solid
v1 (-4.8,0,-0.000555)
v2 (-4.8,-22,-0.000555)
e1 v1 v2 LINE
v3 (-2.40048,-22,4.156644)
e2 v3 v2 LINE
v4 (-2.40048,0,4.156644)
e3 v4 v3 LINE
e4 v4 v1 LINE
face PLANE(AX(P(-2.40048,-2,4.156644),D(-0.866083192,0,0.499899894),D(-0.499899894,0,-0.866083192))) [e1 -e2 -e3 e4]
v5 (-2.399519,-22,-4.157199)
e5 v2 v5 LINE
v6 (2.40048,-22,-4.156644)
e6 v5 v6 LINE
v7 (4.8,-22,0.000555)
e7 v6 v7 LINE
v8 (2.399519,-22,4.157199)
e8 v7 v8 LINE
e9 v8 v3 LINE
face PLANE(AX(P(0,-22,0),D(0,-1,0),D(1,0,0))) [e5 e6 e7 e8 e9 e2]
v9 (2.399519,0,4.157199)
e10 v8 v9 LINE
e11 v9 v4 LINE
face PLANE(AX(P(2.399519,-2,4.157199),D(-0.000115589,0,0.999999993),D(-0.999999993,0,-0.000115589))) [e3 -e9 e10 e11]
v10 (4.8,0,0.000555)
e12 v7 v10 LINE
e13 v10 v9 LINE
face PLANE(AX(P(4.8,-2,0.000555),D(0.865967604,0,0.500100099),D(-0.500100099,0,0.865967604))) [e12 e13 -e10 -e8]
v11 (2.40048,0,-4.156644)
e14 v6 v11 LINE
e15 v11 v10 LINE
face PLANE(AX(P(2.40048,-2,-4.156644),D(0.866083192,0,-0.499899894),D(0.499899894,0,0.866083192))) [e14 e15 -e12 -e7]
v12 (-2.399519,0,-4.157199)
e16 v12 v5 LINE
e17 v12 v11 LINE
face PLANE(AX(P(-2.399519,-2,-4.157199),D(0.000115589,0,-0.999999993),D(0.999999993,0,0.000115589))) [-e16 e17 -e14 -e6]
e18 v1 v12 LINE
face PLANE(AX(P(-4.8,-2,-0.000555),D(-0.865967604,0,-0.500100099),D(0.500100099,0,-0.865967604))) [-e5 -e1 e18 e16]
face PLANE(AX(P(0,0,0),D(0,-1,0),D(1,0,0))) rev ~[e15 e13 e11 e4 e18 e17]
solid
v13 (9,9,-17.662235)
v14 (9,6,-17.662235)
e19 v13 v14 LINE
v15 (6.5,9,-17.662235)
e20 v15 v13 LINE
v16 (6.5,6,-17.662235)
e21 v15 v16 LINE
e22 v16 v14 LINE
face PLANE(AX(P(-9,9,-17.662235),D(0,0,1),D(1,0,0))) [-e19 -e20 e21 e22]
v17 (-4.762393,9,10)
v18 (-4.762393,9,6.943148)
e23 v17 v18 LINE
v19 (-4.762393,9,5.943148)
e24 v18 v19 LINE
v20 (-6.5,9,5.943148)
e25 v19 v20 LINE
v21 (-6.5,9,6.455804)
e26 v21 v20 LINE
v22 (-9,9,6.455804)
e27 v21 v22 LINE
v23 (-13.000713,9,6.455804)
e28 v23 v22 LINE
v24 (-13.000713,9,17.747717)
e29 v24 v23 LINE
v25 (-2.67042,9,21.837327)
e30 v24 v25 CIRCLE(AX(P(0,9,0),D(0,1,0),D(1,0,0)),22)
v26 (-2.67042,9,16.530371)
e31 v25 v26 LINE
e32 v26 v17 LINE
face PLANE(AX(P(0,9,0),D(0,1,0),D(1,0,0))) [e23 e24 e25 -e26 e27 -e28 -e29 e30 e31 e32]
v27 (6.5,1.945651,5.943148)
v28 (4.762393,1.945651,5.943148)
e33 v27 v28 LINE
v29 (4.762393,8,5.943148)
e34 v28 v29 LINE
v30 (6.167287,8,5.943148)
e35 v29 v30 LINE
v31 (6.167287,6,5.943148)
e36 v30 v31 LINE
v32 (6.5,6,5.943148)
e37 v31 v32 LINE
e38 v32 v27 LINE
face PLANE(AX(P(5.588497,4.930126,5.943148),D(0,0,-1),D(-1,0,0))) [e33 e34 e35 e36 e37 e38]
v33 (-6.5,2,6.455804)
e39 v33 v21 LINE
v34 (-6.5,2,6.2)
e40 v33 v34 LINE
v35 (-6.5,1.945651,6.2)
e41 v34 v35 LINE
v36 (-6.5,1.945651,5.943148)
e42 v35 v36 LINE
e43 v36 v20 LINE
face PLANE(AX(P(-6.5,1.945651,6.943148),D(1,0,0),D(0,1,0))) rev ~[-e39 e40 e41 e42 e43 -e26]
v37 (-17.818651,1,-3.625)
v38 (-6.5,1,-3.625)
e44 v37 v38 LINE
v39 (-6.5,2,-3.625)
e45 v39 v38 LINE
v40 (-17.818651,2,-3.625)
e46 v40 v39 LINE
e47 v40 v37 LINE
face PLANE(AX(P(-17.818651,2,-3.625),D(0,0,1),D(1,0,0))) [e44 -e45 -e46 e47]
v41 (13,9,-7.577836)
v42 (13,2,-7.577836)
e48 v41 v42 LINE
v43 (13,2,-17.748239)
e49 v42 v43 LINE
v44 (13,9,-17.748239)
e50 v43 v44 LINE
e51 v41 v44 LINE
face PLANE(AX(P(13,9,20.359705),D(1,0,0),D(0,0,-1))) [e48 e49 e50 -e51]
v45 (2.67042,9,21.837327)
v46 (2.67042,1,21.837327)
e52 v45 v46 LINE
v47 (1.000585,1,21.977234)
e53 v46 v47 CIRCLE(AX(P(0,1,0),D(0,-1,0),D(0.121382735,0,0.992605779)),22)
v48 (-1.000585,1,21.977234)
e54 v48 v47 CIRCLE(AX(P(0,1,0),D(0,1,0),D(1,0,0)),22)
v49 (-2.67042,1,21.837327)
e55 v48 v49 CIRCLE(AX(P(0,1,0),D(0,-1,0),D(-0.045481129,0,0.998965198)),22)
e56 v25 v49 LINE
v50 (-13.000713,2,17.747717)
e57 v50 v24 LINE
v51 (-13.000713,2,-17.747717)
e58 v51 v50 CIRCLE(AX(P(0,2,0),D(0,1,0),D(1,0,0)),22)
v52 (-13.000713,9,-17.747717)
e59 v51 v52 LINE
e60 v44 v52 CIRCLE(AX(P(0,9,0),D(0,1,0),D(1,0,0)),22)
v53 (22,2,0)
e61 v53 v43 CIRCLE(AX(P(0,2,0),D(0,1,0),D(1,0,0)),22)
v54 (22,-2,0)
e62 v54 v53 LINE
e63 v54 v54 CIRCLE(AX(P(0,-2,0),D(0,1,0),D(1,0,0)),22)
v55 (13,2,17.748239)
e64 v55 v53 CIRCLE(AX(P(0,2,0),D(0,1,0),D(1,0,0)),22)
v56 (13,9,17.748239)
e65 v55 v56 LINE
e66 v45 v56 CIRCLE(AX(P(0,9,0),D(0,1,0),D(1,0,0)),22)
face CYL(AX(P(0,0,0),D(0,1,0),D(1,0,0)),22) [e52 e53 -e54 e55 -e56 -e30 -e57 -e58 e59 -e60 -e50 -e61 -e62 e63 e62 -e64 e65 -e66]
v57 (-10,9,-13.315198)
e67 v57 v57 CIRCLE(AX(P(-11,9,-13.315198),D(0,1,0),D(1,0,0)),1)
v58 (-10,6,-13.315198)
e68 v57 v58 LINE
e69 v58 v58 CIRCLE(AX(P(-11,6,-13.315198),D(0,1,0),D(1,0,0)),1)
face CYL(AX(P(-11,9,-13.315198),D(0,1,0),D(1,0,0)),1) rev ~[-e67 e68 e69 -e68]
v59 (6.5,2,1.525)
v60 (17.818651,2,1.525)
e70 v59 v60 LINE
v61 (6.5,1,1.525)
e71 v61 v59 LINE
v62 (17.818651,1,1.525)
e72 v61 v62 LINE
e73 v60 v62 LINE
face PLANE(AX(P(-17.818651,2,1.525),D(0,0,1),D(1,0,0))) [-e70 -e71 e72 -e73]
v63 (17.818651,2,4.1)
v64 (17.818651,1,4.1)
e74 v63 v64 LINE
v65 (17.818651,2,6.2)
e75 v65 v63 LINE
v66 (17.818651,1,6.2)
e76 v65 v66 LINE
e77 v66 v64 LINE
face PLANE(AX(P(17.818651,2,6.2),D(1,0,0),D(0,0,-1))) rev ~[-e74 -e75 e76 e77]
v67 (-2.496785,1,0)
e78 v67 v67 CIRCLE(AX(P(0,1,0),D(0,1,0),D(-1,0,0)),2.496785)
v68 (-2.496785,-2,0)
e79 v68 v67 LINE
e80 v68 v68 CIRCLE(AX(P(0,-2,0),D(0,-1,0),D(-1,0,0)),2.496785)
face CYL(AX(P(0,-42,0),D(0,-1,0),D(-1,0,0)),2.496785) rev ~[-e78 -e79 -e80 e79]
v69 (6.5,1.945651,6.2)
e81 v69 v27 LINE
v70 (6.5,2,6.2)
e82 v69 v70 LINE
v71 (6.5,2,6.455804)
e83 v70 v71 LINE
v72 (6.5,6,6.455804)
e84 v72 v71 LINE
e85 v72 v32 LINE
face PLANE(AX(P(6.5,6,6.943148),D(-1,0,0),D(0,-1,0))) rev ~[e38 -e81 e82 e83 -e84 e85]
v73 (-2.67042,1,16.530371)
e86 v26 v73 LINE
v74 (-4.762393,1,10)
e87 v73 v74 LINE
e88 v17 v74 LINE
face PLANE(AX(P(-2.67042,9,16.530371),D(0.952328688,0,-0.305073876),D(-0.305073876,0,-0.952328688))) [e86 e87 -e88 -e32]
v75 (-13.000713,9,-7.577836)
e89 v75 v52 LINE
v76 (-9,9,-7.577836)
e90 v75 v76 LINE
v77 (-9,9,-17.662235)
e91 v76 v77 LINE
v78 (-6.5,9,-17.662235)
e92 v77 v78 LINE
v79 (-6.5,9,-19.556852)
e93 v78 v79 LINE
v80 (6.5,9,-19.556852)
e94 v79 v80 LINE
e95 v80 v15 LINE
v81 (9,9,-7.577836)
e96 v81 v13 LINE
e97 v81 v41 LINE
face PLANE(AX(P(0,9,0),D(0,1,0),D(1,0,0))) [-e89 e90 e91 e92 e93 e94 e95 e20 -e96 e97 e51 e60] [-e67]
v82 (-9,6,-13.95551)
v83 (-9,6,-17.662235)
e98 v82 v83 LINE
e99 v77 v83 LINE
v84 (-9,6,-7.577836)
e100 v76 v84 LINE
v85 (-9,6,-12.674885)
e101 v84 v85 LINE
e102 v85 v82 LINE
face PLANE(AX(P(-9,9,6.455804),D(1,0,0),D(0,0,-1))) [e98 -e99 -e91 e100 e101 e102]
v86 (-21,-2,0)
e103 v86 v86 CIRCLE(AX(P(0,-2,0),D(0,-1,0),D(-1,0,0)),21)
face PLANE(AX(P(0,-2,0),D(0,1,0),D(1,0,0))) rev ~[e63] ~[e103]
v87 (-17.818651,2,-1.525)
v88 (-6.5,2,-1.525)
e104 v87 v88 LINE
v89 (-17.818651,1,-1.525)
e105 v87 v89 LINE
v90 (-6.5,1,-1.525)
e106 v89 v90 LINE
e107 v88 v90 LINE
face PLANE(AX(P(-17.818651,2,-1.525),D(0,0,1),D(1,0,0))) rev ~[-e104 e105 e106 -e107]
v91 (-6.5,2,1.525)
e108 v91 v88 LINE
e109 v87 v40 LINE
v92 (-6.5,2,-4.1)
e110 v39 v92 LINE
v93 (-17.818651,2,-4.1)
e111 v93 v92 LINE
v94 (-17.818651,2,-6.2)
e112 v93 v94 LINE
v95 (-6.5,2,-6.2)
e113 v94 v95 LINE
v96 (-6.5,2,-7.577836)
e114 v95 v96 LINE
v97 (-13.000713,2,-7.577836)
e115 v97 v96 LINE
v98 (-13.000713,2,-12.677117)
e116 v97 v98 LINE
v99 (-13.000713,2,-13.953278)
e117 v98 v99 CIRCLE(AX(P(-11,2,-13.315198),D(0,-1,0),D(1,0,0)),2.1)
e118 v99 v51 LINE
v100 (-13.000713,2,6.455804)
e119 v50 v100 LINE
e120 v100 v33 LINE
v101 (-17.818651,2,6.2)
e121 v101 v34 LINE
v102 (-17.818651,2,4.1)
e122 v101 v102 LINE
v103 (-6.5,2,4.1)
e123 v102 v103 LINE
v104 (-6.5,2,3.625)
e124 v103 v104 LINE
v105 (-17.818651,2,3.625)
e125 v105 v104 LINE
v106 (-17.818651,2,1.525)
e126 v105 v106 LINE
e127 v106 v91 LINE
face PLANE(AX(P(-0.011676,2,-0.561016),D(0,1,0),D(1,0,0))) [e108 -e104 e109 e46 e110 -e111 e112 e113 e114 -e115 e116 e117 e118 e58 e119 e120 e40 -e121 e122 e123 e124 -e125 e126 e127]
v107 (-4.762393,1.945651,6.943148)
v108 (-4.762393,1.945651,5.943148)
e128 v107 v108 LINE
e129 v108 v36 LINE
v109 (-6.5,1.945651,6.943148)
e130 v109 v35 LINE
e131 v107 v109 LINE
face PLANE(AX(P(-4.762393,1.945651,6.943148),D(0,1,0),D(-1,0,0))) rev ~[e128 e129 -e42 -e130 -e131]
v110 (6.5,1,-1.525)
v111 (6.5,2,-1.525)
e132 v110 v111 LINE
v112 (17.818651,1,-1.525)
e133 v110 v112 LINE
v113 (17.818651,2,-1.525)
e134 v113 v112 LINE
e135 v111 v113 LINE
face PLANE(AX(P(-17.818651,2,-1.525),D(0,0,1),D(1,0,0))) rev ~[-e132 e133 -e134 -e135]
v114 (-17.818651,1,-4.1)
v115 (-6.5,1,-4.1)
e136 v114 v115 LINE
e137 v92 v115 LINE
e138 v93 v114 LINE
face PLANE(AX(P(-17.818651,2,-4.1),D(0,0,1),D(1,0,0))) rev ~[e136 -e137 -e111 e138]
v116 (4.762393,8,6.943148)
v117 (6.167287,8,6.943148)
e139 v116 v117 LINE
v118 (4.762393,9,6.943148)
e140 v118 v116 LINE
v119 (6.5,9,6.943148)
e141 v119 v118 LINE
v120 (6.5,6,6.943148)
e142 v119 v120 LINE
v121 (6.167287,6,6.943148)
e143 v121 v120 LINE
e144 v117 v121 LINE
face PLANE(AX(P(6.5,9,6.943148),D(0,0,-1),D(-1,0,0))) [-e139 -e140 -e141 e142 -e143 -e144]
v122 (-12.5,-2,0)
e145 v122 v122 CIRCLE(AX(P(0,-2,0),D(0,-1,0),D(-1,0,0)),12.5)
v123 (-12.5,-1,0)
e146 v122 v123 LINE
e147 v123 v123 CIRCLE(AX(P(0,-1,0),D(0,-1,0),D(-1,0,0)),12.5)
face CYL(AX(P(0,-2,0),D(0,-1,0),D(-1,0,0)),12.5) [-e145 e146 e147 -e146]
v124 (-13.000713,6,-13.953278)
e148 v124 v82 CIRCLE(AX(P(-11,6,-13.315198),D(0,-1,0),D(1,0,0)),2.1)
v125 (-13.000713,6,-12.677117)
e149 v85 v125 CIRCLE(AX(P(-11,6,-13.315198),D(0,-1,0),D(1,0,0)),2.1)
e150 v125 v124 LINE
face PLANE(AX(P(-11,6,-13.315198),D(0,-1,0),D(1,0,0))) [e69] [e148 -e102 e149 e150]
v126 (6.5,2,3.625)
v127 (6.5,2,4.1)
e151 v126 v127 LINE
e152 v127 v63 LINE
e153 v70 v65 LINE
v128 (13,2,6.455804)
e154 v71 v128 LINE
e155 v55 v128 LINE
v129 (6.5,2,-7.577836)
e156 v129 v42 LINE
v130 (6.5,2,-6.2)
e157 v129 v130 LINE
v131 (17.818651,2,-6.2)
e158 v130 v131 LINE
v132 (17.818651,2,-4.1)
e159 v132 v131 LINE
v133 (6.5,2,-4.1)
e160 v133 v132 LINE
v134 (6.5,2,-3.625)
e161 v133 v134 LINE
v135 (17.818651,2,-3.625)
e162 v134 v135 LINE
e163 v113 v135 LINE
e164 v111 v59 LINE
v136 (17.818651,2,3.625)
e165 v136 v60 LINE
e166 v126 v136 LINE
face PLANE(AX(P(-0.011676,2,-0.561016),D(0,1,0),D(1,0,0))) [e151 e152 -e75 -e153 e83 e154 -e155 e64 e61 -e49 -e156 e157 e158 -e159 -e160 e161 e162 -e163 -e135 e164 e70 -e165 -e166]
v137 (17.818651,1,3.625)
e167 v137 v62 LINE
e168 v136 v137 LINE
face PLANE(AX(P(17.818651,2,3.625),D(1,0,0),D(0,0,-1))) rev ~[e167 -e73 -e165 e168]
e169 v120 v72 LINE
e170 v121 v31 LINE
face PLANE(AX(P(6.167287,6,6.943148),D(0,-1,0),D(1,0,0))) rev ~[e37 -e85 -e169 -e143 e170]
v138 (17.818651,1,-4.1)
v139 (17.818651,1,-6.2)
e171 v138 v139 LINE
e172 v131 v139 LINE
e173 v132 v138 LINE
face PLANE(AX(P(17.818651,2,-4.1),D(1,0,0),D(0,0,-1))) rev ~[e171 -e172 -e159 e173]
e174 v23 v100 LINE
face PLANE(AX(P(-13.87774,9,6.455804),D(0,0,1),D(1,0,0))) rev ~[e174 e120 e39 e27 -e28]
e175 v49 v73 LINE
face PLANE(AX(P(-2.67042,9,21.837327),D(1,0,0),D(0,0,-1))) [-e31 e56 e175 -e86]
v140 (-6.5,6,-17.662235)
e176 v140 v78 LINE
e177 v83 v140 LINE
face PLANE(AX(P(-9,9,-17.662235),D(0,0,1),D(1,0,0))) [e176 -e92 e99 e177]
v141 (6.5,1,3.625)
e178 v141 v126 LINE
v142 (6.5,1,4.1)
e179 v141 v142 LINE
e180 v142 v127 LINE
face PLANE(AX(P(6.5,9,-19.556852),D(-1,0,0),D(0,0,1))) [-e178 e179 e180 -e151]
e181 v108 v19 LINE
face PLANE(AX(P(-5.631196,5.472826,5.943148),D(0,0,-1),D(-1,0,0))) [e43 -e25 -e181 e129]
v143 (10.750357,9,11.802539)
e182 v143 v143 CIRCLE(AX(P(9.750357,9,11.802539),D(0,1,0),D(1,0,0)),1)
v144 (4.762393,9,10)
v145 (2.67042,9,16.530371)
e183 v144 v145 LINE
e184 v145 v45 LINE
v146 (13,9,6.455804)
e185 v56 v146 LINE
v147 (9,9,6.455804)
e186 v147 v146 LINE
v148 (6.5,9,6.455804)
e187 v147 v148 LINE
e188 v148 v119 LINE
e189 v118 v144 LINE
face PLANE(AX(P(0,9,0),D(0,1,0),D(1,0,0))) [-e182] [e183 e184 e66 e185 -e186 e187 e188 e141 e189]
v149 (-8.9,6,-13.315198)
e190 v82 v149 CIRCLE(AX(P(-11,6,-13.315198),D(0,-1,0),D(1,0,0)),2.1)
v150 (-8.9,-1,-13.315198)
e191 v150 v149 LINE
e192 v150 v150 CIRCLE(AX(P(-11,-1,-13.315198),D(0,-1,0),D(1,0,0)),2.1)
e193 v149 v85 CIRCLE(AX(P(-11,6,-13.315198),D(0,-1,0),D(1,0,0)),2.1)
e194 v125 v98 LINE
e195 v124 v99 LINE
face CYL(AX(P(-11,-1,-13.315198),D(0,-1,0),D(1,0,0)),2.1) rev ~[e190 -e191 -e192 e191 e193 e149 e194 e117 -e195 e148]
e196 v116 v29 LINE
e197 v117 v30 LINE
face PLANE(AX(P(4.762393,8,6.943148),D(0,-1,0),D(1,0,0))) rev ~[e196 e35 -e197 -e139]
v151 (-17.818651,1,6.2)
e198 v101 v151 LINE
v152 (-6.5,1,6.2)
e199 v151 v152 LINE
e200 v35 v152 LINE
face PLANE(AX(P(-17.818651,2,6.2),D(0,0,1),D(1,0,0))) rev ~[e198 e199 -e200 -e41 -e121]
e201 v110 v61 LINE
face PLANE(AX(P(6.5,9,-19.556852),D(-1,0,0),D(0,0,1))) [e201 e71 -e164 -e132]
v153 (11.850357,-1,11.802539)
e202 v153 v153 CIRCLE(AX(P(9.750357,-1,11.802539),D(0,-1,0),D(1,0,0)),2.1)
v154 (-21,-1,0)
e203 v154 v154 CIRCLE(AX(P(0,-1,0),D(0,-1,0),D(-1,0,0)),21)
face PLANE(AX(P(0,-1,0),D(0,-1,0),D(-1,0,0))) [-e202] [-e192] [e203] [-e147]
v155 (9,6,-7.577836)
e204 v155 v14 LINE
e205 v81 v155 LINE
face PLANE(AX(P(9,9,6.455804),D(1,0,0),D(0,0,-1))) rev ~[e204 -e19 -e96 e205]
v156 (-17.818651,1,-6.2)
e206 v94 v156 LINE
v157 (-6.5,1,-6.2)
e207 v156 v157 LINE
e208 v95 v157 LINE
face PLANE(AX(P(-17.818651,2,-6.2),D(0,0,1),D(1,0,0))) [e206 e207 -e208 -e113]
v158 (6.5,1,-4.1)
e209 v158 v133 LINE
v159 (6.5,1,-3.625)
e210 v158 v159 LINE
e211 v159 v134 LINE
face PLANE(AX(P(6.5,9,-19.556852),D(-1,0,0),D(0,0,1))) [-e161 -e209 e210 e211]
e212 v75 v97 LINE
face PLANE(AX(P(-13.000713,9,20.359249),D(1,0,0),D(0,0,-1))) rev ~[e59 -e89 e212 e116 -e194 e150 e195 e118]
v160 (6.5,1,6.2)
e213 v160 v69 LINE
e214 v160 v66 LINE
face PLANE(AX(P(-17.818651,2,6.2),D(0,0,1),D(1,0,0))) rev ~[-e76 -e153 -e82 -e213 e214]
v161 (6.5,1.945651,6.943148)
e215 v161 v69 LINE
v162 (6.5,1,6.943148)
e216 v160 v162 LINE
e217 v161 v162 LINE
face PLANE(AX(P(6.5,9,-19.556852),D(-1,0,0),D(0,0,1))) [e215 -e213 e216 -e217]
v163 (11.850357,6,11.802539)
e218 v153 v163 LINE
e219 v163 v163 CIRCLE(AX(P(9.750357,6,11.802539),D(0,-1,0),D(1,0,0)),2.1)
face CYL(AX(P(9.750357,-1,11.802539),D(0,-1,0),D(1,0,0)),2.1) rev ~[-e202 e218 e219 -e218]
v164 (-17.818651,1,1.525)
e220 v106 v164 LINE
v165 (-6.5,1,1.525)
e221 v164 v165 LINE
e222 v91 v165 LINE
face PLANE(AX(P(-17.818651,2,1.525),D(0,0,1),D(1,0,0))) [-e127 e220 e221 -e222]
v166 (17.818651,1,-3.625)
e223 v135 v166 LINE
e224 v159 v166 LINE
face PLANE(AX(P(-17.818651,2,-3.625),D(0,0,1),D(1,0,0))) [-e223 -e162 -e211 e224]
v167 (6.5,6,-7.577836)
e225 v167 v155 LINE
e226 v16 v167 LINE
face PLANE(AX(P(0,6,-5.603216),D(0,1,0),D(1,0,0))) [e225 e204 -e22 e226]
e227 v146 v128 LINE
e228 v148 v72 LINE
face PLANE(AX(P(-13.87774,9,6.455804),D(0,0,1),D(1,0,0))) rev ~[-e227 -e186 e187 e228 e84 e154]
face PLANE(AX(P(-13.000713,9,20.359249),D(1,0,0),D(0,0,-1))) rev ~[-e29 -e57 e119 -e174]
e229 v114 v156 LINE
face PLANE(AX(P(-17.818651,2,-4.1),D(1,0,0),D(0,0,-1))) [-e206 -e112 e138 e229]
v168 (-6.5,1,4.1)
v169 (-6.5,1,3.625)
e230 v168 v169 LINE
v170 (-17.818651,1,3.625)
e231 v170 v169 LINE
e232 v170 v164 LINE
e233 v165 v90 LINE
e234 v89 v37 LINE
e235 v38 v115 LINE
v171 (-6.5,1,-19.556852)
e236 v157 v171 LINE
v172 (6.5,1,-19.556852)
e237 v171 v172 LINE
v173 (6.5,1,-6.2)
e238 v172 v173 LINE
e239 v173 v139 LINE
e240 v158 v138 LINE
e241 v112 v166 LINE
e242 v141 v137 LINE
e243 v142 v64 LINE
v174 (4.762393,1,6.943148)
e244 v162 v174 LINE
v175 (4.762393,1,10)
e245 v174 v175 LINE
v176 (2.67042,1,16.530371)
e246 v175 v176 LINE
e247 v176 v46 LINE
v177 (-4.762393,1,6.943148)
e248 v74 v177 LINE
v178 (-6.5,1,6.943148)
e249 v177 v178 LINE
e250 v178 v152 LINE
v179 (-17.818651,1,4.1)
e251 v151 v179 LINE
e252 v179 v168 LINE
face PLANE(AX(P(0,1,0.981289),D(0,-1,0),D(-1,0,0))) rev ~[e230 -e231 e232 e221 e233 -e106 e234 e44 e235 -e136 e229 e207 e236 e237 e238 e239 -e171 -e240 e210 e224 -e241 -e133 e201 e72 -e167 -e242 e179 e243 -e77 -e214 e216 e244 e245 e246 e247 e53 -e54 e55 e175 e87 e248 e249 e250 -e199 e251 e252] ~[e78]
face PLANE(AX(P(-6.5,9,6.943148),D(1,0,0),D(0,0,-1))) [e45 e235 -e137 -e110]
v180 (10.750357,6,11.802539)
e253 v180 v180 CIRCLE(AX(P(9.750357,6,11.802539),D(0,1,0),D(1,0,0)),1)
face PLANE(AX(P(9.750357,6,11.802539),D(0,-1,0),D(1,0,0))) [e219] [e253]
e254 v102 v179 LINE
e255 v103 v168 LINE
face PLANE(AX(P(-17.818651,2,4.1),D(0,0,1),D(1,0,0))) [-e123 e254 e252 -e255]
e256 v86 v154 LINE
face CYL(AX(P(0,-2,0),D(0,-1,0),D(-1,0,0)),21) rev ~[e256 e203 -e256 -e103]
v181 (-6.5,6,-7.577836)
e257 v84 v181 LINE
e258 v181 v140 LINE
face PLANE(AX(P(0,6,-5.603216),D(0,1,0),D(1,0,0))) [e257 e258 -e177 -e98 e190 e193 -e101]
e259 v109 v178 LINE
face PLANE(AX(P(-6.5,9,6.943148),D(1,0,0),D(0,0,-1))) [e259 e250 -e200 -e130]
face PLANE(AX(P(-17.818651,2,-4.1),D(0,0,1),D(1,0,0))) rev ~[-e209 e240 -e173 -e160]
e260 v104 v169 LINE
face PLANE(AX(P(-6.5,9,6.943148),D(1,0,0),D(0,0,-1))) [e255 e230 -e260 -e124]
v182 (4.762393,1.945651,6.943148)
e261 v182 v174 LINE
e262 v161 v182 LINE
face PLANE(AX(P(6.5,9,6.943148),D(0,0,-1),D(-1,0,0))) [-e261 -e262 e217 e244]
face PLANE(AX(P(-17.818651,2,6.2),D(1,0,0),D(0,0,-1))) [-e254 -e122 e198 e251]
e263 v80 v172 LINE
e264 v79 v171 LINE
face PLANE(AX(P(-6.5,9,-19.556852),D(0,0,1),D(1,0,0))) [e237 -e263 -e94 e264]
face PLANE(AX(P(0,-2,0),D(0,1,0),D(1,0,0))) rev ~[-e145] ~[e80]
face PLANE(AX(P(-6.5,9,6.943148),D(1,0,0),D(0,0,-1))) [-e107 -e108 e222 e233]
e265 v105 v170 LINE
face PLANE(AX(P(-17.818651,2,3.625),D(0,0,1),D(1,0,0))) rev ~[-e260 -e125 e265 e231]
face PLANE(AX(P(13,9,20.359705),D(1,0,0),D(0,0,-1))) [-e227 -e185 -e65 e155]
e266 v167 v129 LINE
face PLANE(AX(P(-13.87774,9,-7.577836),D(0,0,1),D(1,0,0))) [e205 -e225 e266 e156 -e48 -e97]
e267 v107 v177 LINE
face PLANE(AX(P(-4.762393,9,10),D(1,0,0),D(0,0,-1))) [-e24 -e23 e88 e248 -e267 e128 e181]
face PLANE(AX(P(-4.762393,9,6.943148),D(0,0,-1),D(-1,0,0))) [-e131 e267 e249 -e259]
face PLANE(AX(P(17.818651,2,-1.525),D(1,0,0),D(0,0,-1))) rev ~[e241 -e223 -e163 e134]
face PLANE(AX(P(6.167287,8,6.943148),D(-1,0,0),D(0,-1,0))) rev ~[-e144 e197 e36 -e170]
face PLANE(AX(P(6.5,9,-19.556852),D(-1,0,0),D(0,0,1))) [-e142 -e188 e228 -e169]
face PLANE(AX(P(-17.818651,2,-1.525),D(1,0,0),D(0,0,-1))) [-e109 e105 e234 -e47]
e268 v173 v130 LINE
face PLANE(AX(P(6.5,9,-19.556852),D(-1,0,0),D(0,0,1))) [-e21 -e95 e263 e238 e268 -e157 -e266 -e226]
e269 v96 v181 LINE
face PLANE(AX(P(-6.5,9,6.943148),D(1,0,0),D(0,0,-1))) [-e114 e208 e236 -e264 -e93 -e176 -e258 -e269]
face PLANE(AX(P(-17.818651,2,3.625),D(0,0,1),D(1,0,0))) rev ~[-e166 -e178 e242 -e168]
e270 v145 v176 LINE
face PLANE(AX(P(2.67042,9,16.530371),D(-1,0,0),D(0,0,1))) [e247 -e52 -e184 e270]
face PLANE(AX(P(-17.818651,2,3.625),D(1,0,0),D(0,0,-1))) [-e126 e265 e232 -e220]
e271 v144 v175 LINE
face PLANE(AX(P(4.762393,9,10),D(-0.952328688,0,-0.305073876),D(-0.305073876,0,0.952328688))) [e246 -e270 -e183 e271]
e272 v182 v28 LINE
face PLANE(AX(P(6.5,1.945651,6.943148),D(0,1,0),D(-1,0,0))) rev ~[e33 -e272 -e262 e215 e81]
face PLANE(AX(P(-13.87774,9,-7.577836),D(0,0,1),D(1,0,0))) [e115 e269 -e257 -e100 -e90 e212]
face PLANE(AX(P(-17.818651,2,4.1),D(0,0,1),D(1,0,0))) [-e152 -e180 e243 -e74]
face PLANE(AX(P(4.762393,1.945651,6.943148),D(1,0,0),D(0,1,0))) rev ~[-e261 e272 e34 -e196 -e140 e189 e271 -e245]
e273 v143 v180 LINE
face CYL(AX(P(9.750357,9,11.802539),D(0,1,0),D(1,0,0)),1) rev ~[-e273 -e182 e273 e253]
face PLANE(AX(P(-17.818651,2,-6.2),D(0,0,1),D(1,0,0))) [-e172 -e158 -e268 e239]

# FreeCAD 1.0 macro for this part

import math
import FreeCAD as App
import Part
import Sketcher
from FreeCAD import Vector
Q = App.Units.Quantity


def add_polygon(sketch, points):
    """Adds a closed chain of lines whose ends are joined by coincident constraints."""
    first, n = sketch.GeometryCount, len(points)
    for a, b in zip(points, points[1:] + points[:1]):
        sketch.addGeometry(Part.LineSegment(App.Vector(*a, 0), App.Vector(*b, 0)), False)
    for i in range(n):
        sketch.addConstraint(Sketcher.Constraint("Coincident", first + i, 2, first + (i + 1) % n, 1))

doc = App.newDocument("Part")
body = doc.addObject("PartDesign::Body", "Body")

sketch1 = body.newObject("Sketcher::SketchObject", "Sketch")
sketch1.AttachmentSupport = (doc.getObject("XZ_Plane"), [""])
sketch1.MapMode = "FlatFace"
sketch1.addGeometry(Part.Circle(Vector(0, 0, 0), Vector(0, 0, 1), 22), False)
sketch1.addConstraint([
    Sketcher.Constraint("Coincident", 0, 3, -1, 1),
    Sketcher.Constraint("Diameter", 0, Q("44 mm")),
])
pad1 = body.newObject("PartDesign::Pad", "Pad")
pad1.Profile = sketch1
pad1.Type = "TwoLengths"
pad1.Length = 9
pad1.Length2 = 2
pad1.Reversed = True

sketch2 = body.newObject("Sketcher::SketchObject", "Sketch001")
sketch2.AttachmentSupport = (doc.getObject("XZ_Plane"), [""])
sketch2.MapMode = "FlatFace"
sketch2.AttachmentOffset = App.Placement(Vector(0, 0, 2), App.Rotation())
sketch2.addGeometry([
    Part.Circle(Vector(0, 0, 0), Vector(0, 0, 1), 21),
    Part.Circle(Vector(0, 0, 0), Vector(0, 0, 1), 12.5),
], False)
sketch2.addConstraint([
    Sketcher.Constraint("Coincident", 0, 3, -1, 1),
    Sketcher.Constraint("Coincident", 1, 3, -1, 1),
    Sketcher.Constraint("Diameter", 0, Q("42 mm")),
    Sketcher.Constraint("Diameter", 1, Q("25 mm")),
])
pocket1 = body.newObject("PartDesign::Pocket", "Pocket")
pocket1.Profile = sketch2
pocket1.Length = 1

sketch3 = body.newObject("Sketcher::SketchObject", "Sketch002")
sketch3.AttachmentSupport = (doc.getObject("XZ_Plane"), [""])
sketch3.MapMode = "FlatFace"
sketch3.AttachmentOffset = App.Placement(Vector(0, 0, 2), App.Rotation())
sketch3.addGeometry(Part.Circle(Vector(0, 0, 0), Vector(0, 0, 1), 8.5), False)
sketch3.addConstraint([
    Sketcher.Constraint("Coincident", 0, 3, -1, 1),
    Sketcher.Constraint("Diameter", 0, Q("17 mm")),
])
pad2 = body.newObject("PartDesign::Pad", "Pad001")
pad2.Profile = sketch3
pad2.Length = 40

sketch4 = body.newObject("Sketcher::SketchObject", "Sketch003")
sketch4.AttachmentSupport = (doc.getObject("XZ_Plane"), [""])
sketch4.MapMode = "FlatFace"
sketch4.AttachmentOffset = App.Placement(Vector(0, 0, 2), App.Rotation())
sketch4.addGeometry(Part.Circle(Vector(0, 0, 0), Vector(0, 0, 1), 1.5), False)
sketch4.addConstraint([
    Sketcher.Constraint("Coincident", 0, 3, -1, 1),
    Sketcher.Constraint("Diameter", 0, Q("3 mm")),
])
pocket2 = body.newObject("PartDesign::Pocket", "Pocket001")
pocket2.Profile = sketch4
pocket2.Type = "ThroughAll"
pocket2.Midplane = True

sketch5 = body.newObject("Sketcher::SketchObject", "Sketch004")
sketch5.AttachmentSupport = (doc.getObject("XZ_Plane"), [""])
sketch5.MapMode = "FlatFace"
sketch5.AttachmentOffset = App.Placement(Vector(0, 0, -9), App.Rotation())
sketch5.addGeometry([
    Part.LineSegment(Vector(-13.000713, 20.359249, 0), Vector(-13.000713, -20.359249, 0)),
    Part.ArcOfCircle(Part.Circle(Vector(0, 0, 0), Vector(0, 0, 1), 24.156108), math.radians(122.560895), math.radians(237.439105)),
    Part.LineSegment(Vector(13, -20.359705, 0), Vector(13, 20.359705, 0)),
    Part.ArcOfCircle(Part.Circle(Vector(0, 0, 0), Vector(0, 0, 1), 24.156108), math.radians(-57.441112), math.radians(57.441112)),
], False)
sketch5.addConstraint([
    Sketcher.Constraint("Coincident", 0, 1, 1, 1),
    Sketcher.Constraint("Coincident", 1, 2, 0, 2),
    Sketcher.Constraint("Coincident", 2, 1, 3, 1),
    Sketcher.Constraint("Coincident", 3, 2, 2, 2),
    Sketcher.Constraint("Vertical", 0),
    Sketcher.Constraint("Vertical", 2),
    Sketcher.Constraint("Coincident", 1, 3, -1, 1),
    Sketcher.Constraint("Coincident", 3, 3, -1, 1),
    Sketcher.Constraint("Equal", 1, 3),
    Sketcher.Constraint("DistanceX", -1, 1, 2, 1, Q("13 mm")),
    Sketcher.Constraint("Radius", 1, Q("24.156108 mm")),
    Sketcher.Constraint("DistanceY", 0, 2, 0, 1, Q("40.718498 mm")),
])
pocket3 = body.newObject("PartDesign::Pocket", "Pocket002")
pocket3.Profile = sketch5
pocket3.Length = 7
pocket3.Reversed = True

sketch6 = body.newObject("Sketcher::SketchObject", "Sketch005")
sketch6.AttachmentSupport = (doc.getObject("XZ_Plane"), [""])
sketch6.MapMode = "FlatFace"
sketch6.AttachmentOffset = App.Placement(Vector(0, 0, 42), App.Rotation())
sketch6.addGeometry(Part.Circle(Vector(0, 0, 0), Vector(0, 0, 1), 2.496785), False)
sketch6.addConstraint([
    Sketcher.Constraint("Coincident", 0, 3, -1, 1),
    Sketcher.Constraint("Diameter", 0, Q("4.99357 mm")),
])
pocket4 = body.newObject("PartDesign::Pocket", "Pocket003")
pocket4.Profile = sketch6
pocket4.Length = 62

sketch7 = body.newObject("Sketcher::SketchObject", "Sketch006")
sketch7.AttachmentSupport = (doc.getObject("XZ_Plane"), [""])
sketch7.MapMode = "FlatFace"
sketch7.AttachmentOffset = App.Placement(Vector(0, 0, -9), App.Rotation())
add_polygon(sketch7, [(-9, -17.662235), (-9, 6.455804), (9, 6.455804), (9, -17.662235)])
sketch7.addConstraint([
    Sketcher.Constraint("Vertical", 0),
    Sketcher.Constraint("Horizontal", 1),
    Sketcher.Constraint("Vertical", 2),
    Sketcher.Constraint("Horizontal", 3),
    Sketcher.Constraint("DistanceX", 1, 1, 1, 2, Q("18 mm")),
    Sketcher.Constraint("DistanceX", 0, 2, -1, 1, Q("9 mm")),
    Sketcher.Constraint("DistanceY", 0, 1, 0, 2, Q("24.118039 mm")),
    Sketcher.Constraint("DistanceY", -1, 1, 0, 2, Q("6.455804 mm")),
])
pocket5 = body.newObject("PartDesign::Pocket", "Pocket004")
pocket5.Profile = sketch7
pocket5.Length = 3
pocket5.Reversed = True

sketch8 = body.newObject("Sketcher::SketchObject", "Sketch007")
sketch8.AttachmentSupport = (doc.getObject("XZ_Plane"), [""])
sketch8.MapMode = "FlatFace"
sketch8.AttachmentOffset = App.Placement(Vector(0, 0, -9), App.Rotation())
add_polygon(sketch8, [(5.502146, -7.544196), (5.502146, 6.455804), (8.002146, 6.455804), (8.002146, -7.544196)])
add_polygon(sketch8, [(-8.002146, -7.544196), (-8.002146, 6.455804), (-5.502146, 6.455804), (-5.502146, -7.544196)])
sketch8.addConstraint([
    Sketcher.Constraint("Vertical", 0),
    Sketcher.Constraint("Horizontal", 1),
    Sketcher.Constraint("Vertical", 2),
    Sketcher.Constraint("Horizontal", 3),
    Sketcher.Constraint("Vertical", 4),
    Sketcher.Constraint("Horizontal", 5),
    Sketcher.Constraint("Vertical", 6),
    Sketcher.Constraint("Horizontal", 7),
    Sketcher.Constraint("Symmetric", 1, 2, 4, 2, -2),
    Sketcher.Constraint("Symmetric", 3, 2, 6, 2, -2),
    Sketcher.Constraint("DistanceY", 0, 1, 0, 2, Q("14 mm")),
    Sketcher.Constraint("DistanceX", 1, 1, 1, 2, Q("2.5 mm")),
    Sketcher.Constraint("DistanceX", -1, 1, 0, 2, Q("5.502146 mm")),
    Sketcher.Constraint("DistanceY", -1, 1, 0, 2, Q("6.455804 mm")),
])
pocket6 = body.newObject("PartDesign::Pocket", "Pocket005")
pocket6.Profile = sketch8
pocket6.Length = 6
pocket6.Reversed = True

sketch9 = body.newObject("Sketcher::SketchObject", "Sketch008")
sketch9.AttachmentSupport = (doc.getObject("XZ_Plane"), [""])
sketch9.MapMode = "FlatFace"
sketch9.AttachmentOffset = App.Placement(Vector(0, 0, 6.5), App.Rotation())
sketch9.addGeometry([
    Part.Circle(Vector(0, 0, 0), Vector(0, 0, 1), 9.1),
    Part.Circle(Vector(0, 0, 0), Vector(0, 0, 1), 8.5),
], False)
sketch9.addConstraint([
    Sketcher.Constraint("Coincident", 0, 3, -1, 1),
    Sketcher.Constraint("Coincident", 1, 3, -1, 1),
    Sketcher.Constraint("Diameter", 1, Q("17 mm")),
    Sketcher.Constraint("Diameter", 0, Q("18.2 mm")),
])
pad3 = body.newObject("PartDesign::Pad", "Pad002")
pad3.Profile = sketch9
pad3.Type = "TwoLengths"
pad3.Length = 2
pad3.Length2 = 2
pad3.Reversed = True

sketch10 = body.newObject("Sketcher::SketchObject", "Sketch009")
sketch10.AttachmentSupport = (doc.getObject("XZ_Plane"), [""])
sketch10.MapMode = "FlatFace"
sketch10.AttachmentOffset = App.Placement(Vector(0, 0, 17), App.Rotation())
sketch10.addGeometry([
    Part.Circle(Vector(0, 0, 0), Vector(0, 0, 1), 8.5),
    Part.Circle(Vector(0, 0, 0), Vector(0, 0, 1), 8.3),
], False)
sketch10.addConstraint([
    Sketcher.Constraint("Coincident", 0, 3, -1, 1),
    Sketcher.Constraint("Coincident", 1, 3, -1, 1),
    Sketcher.Constraint("Diameter", 0, Q("17 mm")),
    Sketcher.Constraint("Diameter", 1, Q("16.6 mm")),
])
pocket7 = body.newObject("PartDesign::Pocket", "Pocket006")
pocket7.Profile = sketch10
pocket7.Type = "TwoLengths"
pocket7.Length = 1.5
pocket7.Length2 = 1.5

sketch11 = body.newObject("Sketcher::SketchObject", "Sketch010")
sketch11.AttachmentSupport = (doc.getObject("XZ_Plane"), [""])
sketch11.MapMode = "FlatFace"
sketch11.AttachmentOffset = App.Placement(Vector(0, 0, 21), App.Rotation())
sketch11.addGeometry([
    Part.Circle(Vector(0, 0, 0), Vector(0, 0, 1), 8.5),
    Part.Circle(Vector(0, 0, 0), Vector(0, 0, 1), 8.3),
], False)
sketch11.addConstraint([
    Sketcher.Constraint("Coincident", 0, 3, -1, 1),
    Sketcher.Constraint("Coincident", 1, 3, -1, 1),
    Sketcher.Constraint("Diameter", 0, Q("17 mm")),
    Sketcher.Constraint("Diameter", 1, Q("16.6 mm")),
])
pocket8 = body.newObject("PartDesign::Pocket", "Pocket007")
pocket8.Profile = sketch11
pocket8.Type = "TwoLengths"
pocket8.Length = 1.5
pocket8.Length2 = 1.5

sketch12 = body.newObject("Sketcher::SketchObject", "Sketch011")
sketch12.AttachmentSupport = (doc.getObject("XZ_Plane"), [""])
sketch12.MapMode = "FlatFace"
sketch12.AttachmentOffset = App.Placement(Vector(0, 0, 25), App.Rotation())
sketch12.addGeometry([
    Part.Circle(Vector(0, 0, 0), Vector(0, 0, 1), 8.5),
    Part.Circle(Vector(0, 0, 0), Vector(0, 0, 1), 8.3),
], False)
sketch12.addConstraint([
    Sketcher.Constraint("Coincident", 0, 3, -1, 1),
    Sketcher.Constraint("Coincident", 1, 3, -1, 1),
    Sketcher.Constraint("Diameter", 0, Q("17 mm")),
    Sketcher.Constraint("Diameter", 1, Q("16.6 mm")),
])
pocket9 = body.newObject("PartDesign::Pocket", "Pocket008")
pocket9.Profile = sketch12
pocket9.Type = "TwoLengths"
pocket9.Length = 1.5
pocket9.Length2 = 1.5

sketch13 = body.newObject("Sketcher::SketchObject", "Sketch012")
sketch13.AttachmentSupport = (doc.getObject("XZ_Plane"), [""])
sketch13.MapMode = "FlatFace"
sketch13.AttachmentOffset = App.Placement(Vector(0, 0, 29), App.Rotation())
sketch13.addGeometry([
    Part.Circle(Vector(0, 0, 0), Vector(0, 0, 1), 8.5),
    Part.Circle(Vector(0, 0, 0), Vector(0, 0, 1), 8.35),
], False)
sketch13.addConstraint([
    Sketcher.Constraint("Coincident", 0, 3, -1, 1),
    Sketcher.Constraint("Coincident", 1, 3, -1, 1),
    Sketcher.Constraint("Diameter", 0, Q("17 mm")),
    Sketcher.Constraint("Diameter", 1, Q("16.7 mm")),
])
pocket10 = body.newObject("PartDesign::Pocket", "Pocket009")
pocket10.Profile = sketch13
pocket10.Type = "TwoLengths"
pocket10.Length = 1.5
pocket10.Length2 = 1.5

sketch14 = body.newObject("Sketcher::SketchObject", "Sketch013")
sketch14.AttachmentSupport = (doc.getObject("XZ_Plane"), [""])
sketch14.MapMode = "FlatFace"
sketch14.AttachmentOffset = App.Placement(Vector(0, 0, 33), App.Rotation())
sketch14.addGeometry([
    Part.Circle(Vector(0, 0, 0), Vector(0, 0, 1), 8.5),
    Part.Circle(Vector(0, 0, 0), Vector(0, 0, 1), 8.3),
], False)
sketch14.addConstraint([
    Sketcher.Constraint("Coincident", 0, 3, -1, 1),
    Sketcher.Constraint("Coincident", 1, 3, -1, 1),
    Sketcher.Constraint("Diameter", 0, Q("17 mm")),
    Sketcher.Constraint("Diameter", 1, Q("16.6 mm")),
])
pocket11 = body.newObject("PartDesign::Pocket", "Pocket010")
pocket11.Profile = sketch14
pocket11.Type = "TwoLengths"
pocket11.Length = 1.5
pocket11.Length2 = 1.5

sketch15 = body.newObject("Sketcher::SketchObject", "Sketch014")
sketch15.AttachmentSupport = (doc.getObject("XZ_Plane"), [""])
sketch15.MapMode = "FlatFace"
sketch15.AttachmentOffset = App.Placement(Vector(0, 0, 37), App.Rotation())
sketch15.addGeometry([
    Part.Circle(Vector(0, 0, 0), Vector(0, 0, 1), 8.5),
    Part.Circle(Vector(0, 0, 0), Vector(0, 0, 1), 8.3),
], False)
sketch15.addConstraint([
    Sketcher.Constraint("Coincident", 0, 3, -1, 1),
    Sketcher.Constraint("Coincident", 1, 3, -1, 1),
    Sketcher.Constraint("Diameter", 0, Q("17 mm")),
    Sketcher.Constraint("Diameter", 1, Q("16.6 mm")),
])
pocket12 = body.newObject("PartDesign::Pocket", "Pocket011")
pocket12.Profile = sketch15
pocket12.Type = "TwoLengths"
pocket12.Length = 1.5
pocket12.Length2 = 1.5

sketch16 = body.newObject("Sketcher::SketchObject", "Sketch015")
sketch16.AttachmentSupport = (doc.getObject("XY_Plane"), [""])
sketch16.MapMode = "FlatFace"
sketch16.addGeometry([
    Part.Circle(Vector(0, -16.975648, 0), Vector(0, 0, 1), 1),
    Part.Circle(Vector(0, -29.04218, 0), Vector(0, 0, 1), 1),
], False)
sketch16.addConstraint([
    Sketcher.Constraint("Equal", 0, 1),
    Sketcher.Constraint("PointOnObject", 0, 3, -2),
    Sketcher.Constraint("PointOnObject", 1, 3, -2),
    Sketcher.Constraint("Diameter", 0, Q("2 mm")),
    Sketcher.Constraint("DistanceY", 1, 3, -1, 1, Q("29.04218 mm")),
    Sketcher.Constraint("DistanceY", 1, 3, 0, 3, Q("12.066532 mm")),
])
pocket13 = body.newObject("PartDesign::Pocket", "Pocket012")
pocket13.Profile = sketch16
pocket13.Type = "ThroughAll"
pocket13.Midplane = True

sketch17 = body.newObject("Sketcher::SketchObject", "Sketch016")
sketch17.Placement = App.Placement(Vector(0, 0, 0), App.Rotation(Vector(0, 1, 0), Vector(-0.5, 0, 0.866025404), Vector(0.866025404, 0, 0.5), "ZXY"))
sketch17.addGeometry([
    Part.Circle(Vector(-21.101514, 0, 0), Vector(0, 0, 1), 1),
    Part.Circle(Vector(-33.049456, 0, 0), Vector(0, 0, 1), 1),
], False)
sketch17.addConstraint([
    Sketcher.Constraint("Equal", 0, 1),
    Sketcher.Constraint("PointOnObject", 0, 3, -1),
    Sketcher.Constraint("PointOnObject", 1, 3, -1),
    Sketcher.Constraint("Diameter", 0, Q("2 mm")),
    Sketcher.Constraint("DistanceX", 0, 3, -1, 1, Q("21.101514 mm")),
    Sketcher.Constraint("DistanceX", 1, 3, -1, 1, Q("33.049456 mm")),
])
pocket14 = body.newObject("PartDesign::Pocket", "Pocket013")
pocket14.Profile = sketch17
pocket14.Type = "ThroughAll"
pocket14.Midplane = True

sketch18 = body.newObject("Sketcher::SketchObject", "Sketch017")
sketch18.Placement = App.Placement(Vector(0, 0, 0), App.Rotation(Vector(0, 1, 0), Vector(0.5, 0, 0.866025404), Vector(0.866025404, 0, -0.5), "ZXY"))
sketch18.addGeometry([
    Part.Circle(Vector(-24.961002, 0, 0), Vector(0, 0, 1), 1),
    Part.Circle(Vector(-37.130367, 0, 0), Vector(0, 0, 1), 1),
], False)
sketch18.addConstraint([
    Sketcher.Constraint("Equal", 0, 1),
    Sketcher.Constraint("PointOnObject", 0, 3, -1),
    Sketcher.Constraint("PointOnObject", 1, 3, -1),
    Sketcher.Constraint("Diameter", 0, Q("2 mm")),
    Sketcher.Constraint("DistanceX", 0, 3, -1, 1, Q("24.961002 mm")),
    Sketcher.Constraint("DistanceX", 1, 3, -1, 1, Q("37.130367 mm")),
])
pocket15 = body.newObject("PartDesign::Pocket", "Pocket014")
pocket15.Profile = sketch18
pocket15.Type = "ThroughAll"
pocket15.Midplane = True

sketch19 = body.newObject("Sketcher::SketchObject", "Sketch018")
sketch19.AttachmentSupport = (doc.getObject("XZ_Plane"), [""])
sketch19.MapMode = "FlatFace"
sketch19.AttachmentOffset = App.Placement(Vector(0, 0, -9), App.Rotation())
add_polygon(sketch19, [(-13.87774, -7.577836), (-13.87774, 6.455804), (13.854388, 6.455804), (13.854388, -7.577836)])
sketch19.addConstraint([
    Sketcher.Constraint("Vertical", 0),
    Sketcher.Constraint("Horizontal", 1),
    Sketcher.Constraint("Vertical", 2),
    Sketcher.Constraint("Horizontal", 3),
    Sketcher.Constraint("DistanceX", 1, 1, 1, 2, Q("27.732128 mm")),
    Sketcher.Constraint("DistanceY", 0, 1, 0, 2, Q("14.03364 mm")),
    Sketcher.Constraint("DistanceX", 0, 2, -1, 1, Q("13.87774 mm")),
    Sketcher.Constraint("DistanceY", -1, 1, 0, 2, Q("6.455804 mm")),
])
pocket16 = body.newObject("PartDesign::Pocket", "Pocket015")
pocket16.Profile = sketch19
pocket16.Length = 7
pocket16.Reversed = True

sketch20 = body.newObject("Sketcher::SketchObject", "Sketch019")
sketch20.AttachmentSupport = (doc.getObject("XZ_Plane"), [""])
sketch20.MapMode = "FlatFace"
sketch20.AttachmentOffset = App.Placement(Vector(0, 0, -9), App.Rotation())
sketch20.addGeometry([
    Part.LineSegment(Vector(-4.762393, 10, 0), Vector(-2.67042, 16.530371, 0)),
    Part.LineSegment(Vector(-2.67042, 16.530371, 0), Vector(-2.67042, 21.837327, 0)),
    Part.ArcOfCircle(Part.Circle(Vector(0, 0, 0), Vector(0, 0, 1), 22), math.radians(92.606776), math.radians(96.971911)),
    Part.LineSegment(Vector(-1.000585, 21.977234, 0), Vector(0, 25.25, 0)),
    Part.LineSegment(Vector(0, 25.25, 0), Vector(1.000585, 21.977234, 0)),
    Part.ArcOfCircle(Part.Circle(Vector(0, 0, 0), Vector(0, 0, 1), 22), math.radians(83.028089), math.radians(87.393224)),
    Part.LineSegment(Vector(2.67042, 21.837327, 0), Vector(2.67042, 16.530371, 0)),
    Part.LineSegment(Vector(2.67042, 16.530371, 0), Vector(4.762393, 10, 0)),
    Part.LineSegment(Vector(4.762393, 10, 0), Vector(4.762393, 6.943148, 0)),
    Part.LineSegment(Vector(4.762393, 6.943148, 0), Vector(6.5, 6.943148, 0)),
    Part.LineSegment(Vector(6.5, 6.943148, 0), Vector(6.5, -19.556852, 0)),
    Part.LineSegment(Vector(6.5, -19.556852, 0), Vector(-6.5, -19.556852, 0)),
    Part.LineSegment(Vector(-6.5, -19.556852, 0), Vector(-6.5, 6.943148, 0)),
    Part.LineSegment(Vector(-6.5, 6.943148, 0), Vector(-4.762393, 6.943148, 0)),
    Part.LineSegment(Vector(-4.762393, 6.943148, 0), Vector(-4.762393, 10, 0)),
], False)
sketch20.addConstraint([
    Sketcher.Constraint("Coincident", 0, 2, 1, 1),
    Sketcher.Constraint("Coincident", 1, 2, 2, 2),
    Sketcher.Constraint("Coincident", 2, 1, 3, 1),
    Sketcher.Constraint("Coincident", 3, 2, 4, 1),
    Sketcher.Constraint("Coincident", 4, 2, 5, 2),
    Sketcher.Constraint("Coincident", 5, 1, 6, 1),
    Sketcher.Constraint("Coincident", 6, 2, 7, 1),
    Sketcher.Constraint("Coincident", 7, 2, 8, 1),
    Sketcher.Constraint("Coincident", 8, 2, 9, 1),
    Sketcher.Constraint("Coincident", 9, 2, 10, 1),
    Sketcher.Constraint("Coincident", 10, 2, 11, 1),
    Sketcher.Constraint("Coincident", 11, 2, 12, 1),
    Sketcher.Constraint("Coincident", 12, 2, 13, 1),
    Sketcher.Constraint("Coincident", 13, 2, 14, 1),
    Sketcher.Constraint("Coincident", 14, 2, 0, 1),
    Sketcher.Constraint("Vertical", 1),
    Sketcher.Constraint("Vertical", 6),
    Sketcher.Constraint("Vertical", 8),
    Sketcher.Constraint("Horizontal", 9),
    Sketcher.Constraint("Vertical", 10),
    Sketcher.Constraint("Horizontal", 11),
    Sketcher.Constraint("Vertical", 12),
    Sketcher.Constraint("Horizontal", 13),
    Sketcher.Constraint("Vertical", 14),
    Sketcher.Constraint("Coincident", 2, 3, -1, 1),
    Sketcher.Constraint("Coincident", 5, 3, -1, 1),
    Sketcher.Constraint("Equal", 2, 5),
    Sketcher.Constraint("Symmetric", 0, 2, 6, 2, -2),
    Sketcher.Constraint("Symmetric", 9, 2, 12, 2, -2),
    Sketcher.Constraint("Symmetric", 7, 2, 14, 2, -2),
    Sketcher.Constraint("PointOnObject", 3, 2, -2),
    Sketcher.Constraint("Horizontal", 2, 1, 4, 2),
    Sketcher.Constraint("Radius", 2, Q("22 mm")),
    Sketcher.Constraint("DistanceX", 11, 2, 11, 1, Q("13 mm")),
    Sketcher.Constraint("Angle", 3, Q("73 deg")),
    Sketcher.Constraint("DistanceY", 10, 2, 10, 1, Q("26.5 mm")),
    Sketcher.Constraint("DistanceY", -1, 1, 7, 2, Q("10 mm")),
    Sketcher.Constraint("DistanceY", -1, 1, 3, 2, Q("25.25 mm")),
    Sketcher.Constraint("DistanceY", 8, 2, 8, 1, Q("3.056852 mm")),
    Sketcher.Constraint("DistanceX", 9, 1, 9, 2, Q("1.737607 mm")),
    Sketcher.Constraint("DistanceY", 1, 1, 1, 2, Q("5.306956 mm")),
    Sketcher.Constraint("DistanceX", 0, 2, -1, 1, Q("2.67042 mm")),
])
pocket17 = body.newObject("PartDesign::Pocket", "Pocket016")
pocket17.Profile = sketch20
pocket17.Length = 8
pocket17.Reversed = True

sketch21 = body.newObject("Sketcher::SketchObject", "Sketch020")
sketch21.AttachmentSupport = (doc.getObject("XZ_Plane"), [""])
sketch21.MapMode = "FlatFace"
sketch21.AttachmentOffset = App.Placement(Vector(0, 0, -9), App.Rotation())
sketch21.addGeometry([
    Part.Circle(Vector(-11, -13.315198, 0), Vector(0, 0, 1), 1),
    Part.Circle(Vector(9.750357, 11.802539, 0), Vector(0, 0, 1), 1),
], False)
sketch21.addConstraint([
    Sketcher.Constraint("Equal", 0, 1),
    Sketcher.Constraint("Diameter", 0, Q("2 mm")),
    Sketcher.Constraint("DistanceX", 0, 3, -1, 1, Q("11 mm")),
    Sketcher.Constraint("DistanceY", -1, 1, 1, 3, Q("11.802539 mm")),
    Sketcher.Constraint("DistanceY", 0, 3, -1, 1, Q("13.315198 mm")),
    Sketcher.Constraint("DistanceX", -1, 1, 1, 3, Q("9.750357 mm")),
])
pocket18 = body.newObject("PartDesign::Pocket", "Pocket017")
pocket18.Profile = sketch21
pocket18.Length = 9
pocket18.Reversed = True

sketch22 = body.newObject("Sketcher::SketchObject", "Sketch021")
sketch22.AttachmentSupport = (doc.getObject("XZ_Plane"), [""])
sketch22.MapMode = "FlatFace"
sketch22.AttachmentOffset = App.Placement(Vector(0, 0, 42), App.Rotation())
sketch22.addGeometry(Part.Circle(Vector(0, 0, 0), Vector(0, 0, 1), 6.388254), False)
add_polygon(sketch22, [(-2.49433, -4.321461), (-4.98966, -0.000577), (-2.495329, 4.320884), (2.49433, 4.321461), (4.98966, 0.000577), (2.495329, -4.320884)])
sketch22.addConstraint([
    Sketcher.Constraint("Coincident", 0, 3, -1, 1),
    Sketcher.Constraint("Symmetric", 1, 2, 4, 2, -1, 1),
    Sketcher.Constraint("Symmetric", 2, 2, 5, 2, -1, 1),
    Sketcher.Constraint("Symmetric", 3, 2, 6, 2, -1, 1),
    Sketcher.Constraint("Equal", 1, 2),
    Sketcher.Constraint("Equal", 2, 3),
    Sketcher.Constraint("Diameter", 0, Q("12.776508 mm")),
    Sketcher.Constraint("DistanceX", 3, 2, 5, 2, Q("0.000999 mm")),
    Sketcher.Constraint("Distance", 1, Q("4.98966 mm")),
    Sketcher.Constraint("DistanceX", 1, 2, -1, 1, Q("4.98966 mm")),
    Sketcher.Constraint("DistanceY", -1, 1, 3, 2, Q("4.321461 mm")),
])
pad4 = body.newObject("PartDesign::Pad", "Pad003")
pad4.Profile = sketch22
pad4.Length = 2
pad4.Reversed = True

sketch23 = body.newObject("Sketcher::SketchObject", "Sketch022")
sketch23.AttachmentSupport = (doc.getObject("XZ_Plane"), [""])
sketch23.MapMode = "FlatFace"
sketch23.AttachmentOffset = App.Placement(Vector(0, 0, 1), App.Rotation())
sketch23.addGeometry([
    Part.Circle(Vector(-11, -13.315198, 0), Vector(0, 0, 1), 2.1),
    Part.Circle(Vector(9.750357, 11.802539, 0), Vector(0, 0, 1), 2.1),
], False)
sketch23.addConstraint([
    Sketcher.Constraint("Equal", 0, 1),
    Sketcher.Constraint("Diameter", 0, Q("4.2 mm")),
    Sketcher.Constraint("DistanceX", 0, 3, -1, 1, Q("11 mm")),
    Sketcher.Constraint("DistanceY", -1, 1, 1, 3, Q("11.802539 mm")),
    Sketcher.Constraint("DistanceY", 0, 3, -1, 1, Q("13.315198 mm")),
    Sketcher.Constraint("DistanceX", -1, 1, 1, 3, Q("9.750357 mm")),
])
pocket19 = body.newObject("PartDesign::Pocket", "Pocket018")
pocket19.Profile = sketch23
pocket19.Length = 7

sketch24 = body.newObject("Sketcher::SketchObject", "Sketch023")
sketch24.AttachmentSupport = (doc.getObject("XZ_Plane"), [""])
sketch24.MapMode = "FlatFace"
sketch24.AttachmentOffset = App.Placement(Vector(0, 0, -2), App.Rotation())
add_polygon(sketch24, [(-17.818651, -6.2), (-17.818651, -4.1), (17.818651, -4.1), (17.818651, -6.2)])
add_polygon(sketch24, [(-17.818651, -3.625), (-17.818651, -1.525), (17.818651, -1.525), (17.818651, -3.625)])
add_polygon(sketch24, [(-17.818651, 1.525), (-17.818651, 3.625), (17.818651, 3.625), (17.818651, 1.525)])
add_polygon(sketch24, [(-17.818651, 4.1), (-17.818651, 6.2), (17.818651, 6.2), (17.818651, 4.1)])
sketch24.addConstraint([
    Sketcher.Constraint("Vertical", 0),
    Sketcher.Constraint("Horizontal", 1),
    Sketcher.Constraint("Vertical", 2),
    Sketcher.Constraint("Horizontal", 3),
    Sketcher.Constraint("Vertical", 4),
    Sketcher.Constraint("Horizontal", 5),
    Sketcher.Constraint("Vertical", 6),
    Sketcher.Constraint("Horizontal", 7),
    Sketcher.Constraint("Vertical", 8),
    Sketcher.Constraint("Horizontal", 9),
    Sketcher.Constraint("Vertical", 10),
    Sketcher.Constraint("Horizontal", 11),
    Sketcher.Constraint("Vertical", 12),
    Sketcher.Constraint("Horizontal", 13),
    Sketcher.Constraint("Vertical", 14),
    Sketcher.Constraint("Horizontal", 15),
    Sketcher.Constraint("Symmetric", 6, 2, 8, 2, -1, 1),
    Sketcher.Constraint("Symmetric", 4, 2, 10, 2, -1, 1),
    Sketcher.Constraint("Symmetric", 2, 2, 12, 2, -1, 1),
    Sketcher.Constraint("Symmetric", 0, 2, 14, 2, -1, 1),
    Sketcher.Constraint("Vertical", 3, 2, 4, 2),
    Sketcher.Constraint("Vertical", 2, 2, 5, 2),
    Sketcher.Constraint("Vertical", 7, 2, 8, 2),
    Sketcher.Constraint("Equal", 2, 4),
    Sketcher.Constraint("DistanceY", 0, 1, 0, 2, Q("2.1 mm")),
    Sketcher.Constraint("DistanceY", 0, 2, -1, 1, Q("4.1 mm")),
    Sketcher.Constraint("DistanceY", 4, 2, 8, 2, Q("5.15 mm")),
    Sketcher.Constraint("DistanceX", 1, 1, 1, 2, Q("35.637303 mm")),
])
pocket20 = body.newObject("PartDesign::Pocket", "Pocket019")
pocket20.Profile = sketch24
pocket20.Length = 1
pocket20.Reversed = True

sketch25 = body.newObject("Sketcher::SketchObject", "Sketch024")
sketch25.AttachmentSupport = (doc.getObject("XZ_Plane"), [""])
sketch25.MapMode = "FlatFace"
sketch25.AttachmentOffset = App.Placement(Vector(0, 0, 42), App.Rotation())
sketch25.addGeometry(Part.Circle(Vector(0, 0, 0), Vector(0, 0, 1), 9.1), False)
sketch25.addConstraint([
    Sketcher.Constraint("Coincident", 0, 3, -1, 1),
    Sketcher.Constraint("Diameter", 0, Q("18.2 mm")),
])
pocket21 = body.newObject("PartDesign::Pocket", "Pocket020")
pocket21.Profile = sketch25
pocket21.Length = 40

sketch26 = body.newObject("Sketcher::SketchObject", "Sketch025")
sketch26.AttachmentSupport = (doc.getObject("XY_Plane"), [""])
sketch26.MapMode = "FlatFace"
sketch26.AttachmentOffset = App.Placement(Vector(0, 0, 6.943148), App.Rotation())
add_polygon(sketch26, [(4.762393, 8), (6.167287, 8), (6.167287, 6), (6.5, 6), (6.5, 1.945651), (4.762393, 1.945651)])
add_polygon(sketch26, [(-4.762393, 9), (-4.762393, 1.945651), (-6.5, 1.945651), (-6.5, 9)])
sketch26.addConstraint([
    Sketcher.Constraint("Horizontal", 0),
    Sketcher.Constraint("Vertical", 1),
    Sketcher.Constraint("Horizontal", 2),
    Sketcher.Constraint("Vertical", 3),
    Sketcher.Constraint("Horizontal", 4),
    Sketcher.Constraint("Vertical", 5),
    Sketcher.Constraint("Vertical", 6),
    Sketcher.Constraint("Horizontal", 7),
    Sketcher.Constraint("Vertical", 8),
    Sketcher.Constraint("Horizontal", 9),
    Sketcher.Constraint("Symmetric", 4, 2, 6, 2, -2),
    Sketcher.Constraint("Equal", 4, 7),
    Sketcher.Constraint("DistanceY", 1, 2, 1, 1, Q("2 mm")),
    Sketcher.Constraint("DistanceY", -1, 1, 0, 2, Q("8 mm")),
    Sketcher.Constraint("DistanceY", -1, 1, 8, 2, Q("9 mm")),
    Sketcher.Constraint("DistanceX", 7, 2, 3, 2, Q("13 mm")),
    Sketcher.Constraint("DistanceY", 3, 2, 3, 1, Q("4.054349 mm")),
    Sketcher.Constraint("DistanceX", 0, 1, 0, 2, Q("1.404895 mm")),
    Sketcher.Constraint("DistanceX", 2, 1, 2, 2, Q("0.332713 mm")),
])
pad5 = body.newObject("PartDesign::Pad", "Pad004")
pad5.Profile = sketch26
pad5.Length = 1
pad5.Reversed = True
body2 = doc.addObject("PartDesign::Body", "Body001")

sketch27 = body2.newObject("Sketcher::SketchObject", "Sketch026")
sketch27.AttachmentSupport = (doc.getObject("XZ_Plane001"), [""])
sketch27.MapMode = "FlatFace"
sketch27.AttachmentOffset = App.Placement(Vector(0, 0, 2), App.Rotation())
add_polygon(sketch27, [(2.399519, 4.157199), (-2.40048, 4.156644), (-4.8, -0.000555), (-2.399519, -4.157199), (2.40048, -4.156644), (4.8, 0.000555)])
sketch27.addConstraint([
    Sketcher.Constraint("Symmetric", 0, 2, 3, 2, -1, 1),
    Sketcher.Constraint("Symmetric", 1, 2, 4, 2, -1, 1),
    Sketcher.Constraint("Symmetric", 2, 2, 5, 2, -1, 1),
    Sketcher.Constraint("Equal", 0, 1),
    Sketcher.Constraint("Equal", 1, 2),
    Sketcher.Constraint("Distance", 0, Q("4.8 mm")),
    Sketcher.Constraint("DistanceX", 1, 2, -1, 1, Q("4.8 mm")),
    Sketcher.Constraint("DistanceY", 2, 2, -1, 1, Q("4.157199 mm")),
    Sketcher.Constraint("DistanceY", 1, 2, 0, 2, Q("4.157199 mm")),
])
pad6 = body2.newObject("PartDesign::Pad", "Pad005")
pad6.Profile = sketch27
pad6.Type = "TwoLengths"
pad6.Length = 20
pad6.Length2 = 2

doc.recompute()
